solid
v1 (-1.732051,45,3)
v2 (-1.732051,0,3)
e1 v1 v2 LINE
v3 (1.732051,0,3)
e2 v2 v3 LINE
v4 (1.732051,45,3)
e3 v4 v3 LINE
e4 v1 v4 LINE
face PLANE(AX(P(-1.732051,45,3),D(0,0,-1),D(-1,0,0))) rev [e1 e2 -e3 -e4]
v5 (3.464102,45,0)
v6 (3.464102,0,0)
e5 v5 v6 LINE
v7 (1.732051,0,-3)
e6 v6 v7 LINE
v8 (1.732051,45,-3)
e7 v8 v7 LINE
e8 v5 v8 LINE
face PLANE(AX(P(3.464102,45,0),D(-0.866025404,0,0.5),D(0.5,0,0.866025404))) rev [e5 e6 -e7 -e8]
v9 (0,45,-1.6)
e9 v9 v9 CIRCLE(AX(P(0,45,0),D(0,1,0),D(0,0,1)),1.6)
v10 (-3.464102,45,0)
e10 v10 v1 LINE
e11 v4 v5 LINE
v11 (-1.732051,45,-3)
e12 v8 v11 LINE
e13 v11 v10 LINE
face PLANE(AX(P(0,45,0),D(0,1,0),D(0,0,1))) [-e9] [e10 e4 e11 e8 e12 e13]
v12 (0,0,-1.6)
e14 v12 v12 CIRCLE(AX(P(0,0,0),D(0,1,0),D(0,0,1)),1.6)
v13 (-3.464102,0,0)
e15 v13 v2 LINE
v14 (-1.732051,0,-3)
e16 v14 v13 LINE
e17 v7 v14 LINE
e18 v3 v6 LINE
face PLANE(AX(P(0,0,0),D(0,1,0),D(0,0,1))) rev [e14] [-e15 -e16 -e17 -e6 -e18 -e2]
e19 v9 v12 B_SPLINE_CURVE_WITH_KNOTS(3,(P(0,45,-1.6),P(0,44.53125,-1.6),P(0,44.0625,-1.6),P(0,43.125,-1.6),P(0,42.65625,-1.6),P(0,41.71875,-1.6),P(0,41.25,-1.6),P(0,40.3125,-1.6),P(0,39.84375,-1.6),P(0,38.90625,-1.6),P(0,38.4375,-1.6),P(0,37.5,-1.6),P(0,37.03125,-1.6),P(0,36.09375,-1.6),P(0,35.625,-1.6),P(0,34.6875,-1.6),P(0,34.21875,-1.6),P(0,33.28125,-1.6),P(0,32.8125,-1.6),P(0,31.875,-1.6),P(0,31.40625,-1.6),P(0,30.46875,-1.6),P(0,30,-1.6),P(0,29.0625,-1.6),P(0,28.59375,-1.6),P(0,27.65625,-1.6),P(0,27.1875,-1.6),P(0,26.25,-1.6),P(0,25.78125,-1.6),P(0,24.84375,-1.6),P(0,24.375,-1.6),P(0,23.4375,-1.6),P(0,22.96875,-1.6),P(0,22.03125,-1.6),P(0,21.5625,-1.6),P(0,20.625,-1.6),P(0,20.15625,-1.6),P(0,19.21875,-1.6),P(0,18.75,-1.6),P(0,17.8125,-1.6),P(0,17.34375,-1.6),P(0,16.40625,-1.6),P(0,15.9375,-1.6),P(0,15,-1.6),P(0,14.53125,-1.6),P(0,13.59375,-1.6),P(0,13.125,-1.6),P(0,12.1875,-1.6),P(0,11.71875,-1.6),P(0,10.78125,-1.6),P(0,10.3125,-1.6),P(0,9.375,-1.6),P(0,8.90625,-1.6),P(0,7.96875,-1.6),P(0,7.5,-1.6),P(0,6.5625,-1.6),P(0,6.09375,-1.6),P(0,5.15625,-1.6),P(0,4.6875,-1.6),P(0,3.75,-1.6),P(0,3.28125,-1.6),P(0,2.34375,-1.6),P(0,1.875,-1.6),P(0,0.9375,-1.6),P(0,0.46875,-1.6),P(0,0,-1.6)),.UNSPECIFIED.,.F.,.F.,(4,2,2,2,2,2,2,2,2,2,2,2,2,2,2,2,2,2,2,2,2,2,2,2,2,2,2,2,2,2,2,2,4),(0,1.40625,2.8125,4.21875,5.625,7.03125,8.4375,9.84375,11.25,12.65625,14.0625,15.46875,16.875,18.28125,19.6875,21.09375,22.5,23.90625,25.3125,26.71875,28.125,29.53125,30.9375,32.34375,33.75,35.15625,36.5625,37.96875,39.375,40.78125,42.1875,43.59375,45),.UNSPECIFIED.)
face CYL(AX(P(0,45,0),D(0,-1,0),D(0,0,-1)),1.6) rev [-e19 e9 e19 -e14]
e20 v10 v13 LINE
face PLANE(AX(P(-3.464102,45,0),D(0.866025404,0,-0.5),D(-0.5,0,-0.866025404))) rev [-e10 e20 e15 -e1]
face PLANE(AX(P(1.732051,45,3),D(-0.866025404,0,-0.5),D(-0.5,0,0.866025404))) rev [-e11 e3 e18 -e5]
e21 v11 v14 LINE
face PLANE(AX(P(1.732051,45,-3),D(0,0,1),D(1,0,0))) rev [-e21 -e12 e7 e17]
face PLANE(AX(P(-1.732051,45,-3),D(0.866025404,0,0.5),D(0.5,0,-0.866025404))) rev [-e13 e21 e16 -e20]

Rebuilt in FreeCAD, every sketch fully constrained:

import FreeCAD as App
import Part
import Sketcher

V = App.Vector
Q = App.Units.Quantity


def add_polygon(sketch, points):
    """Adds a closed chain of lines whose ends are joined by coincident constraints."""
    first, n = sketch.GeometryCount, len(points)
    for a, b in zip(points, points[1:] + points[:1]):
        sketch.addGeometry(Part.LineSegment(App.Vector(*a, 0), App.Vector(*b, 0)), False)
    for i in range(n):
        sketch.addConstraint(Sketcher.Constraint("Coincident", first + i, 2, first + (i + 1) % n, 1))

doc = App.newDocument("Part")
body = doc.addObject("PartDesign::Body", "Body")

# Sketch on XZ plane
sketch1 = doc.addObject("Sketcher::SketchObject", "Sketch")
body.addObject(sketch1)
sketch1.AttachmentSupport = (doc.XZ_Plane, [""])
sketch1.MapMode = "FlatFace"
add_polygon(sketch1, [(3.464102, 0), (1.732051, -3), (-1.732051, -3), (-3.464102, 0), (-1.732051, 3), (1.732051, 3)])  # lines 0-5
sketch1.addGeometry(Part.Circle(V(0, 0, 0), V(0, 0, 1), 1.6), False)  # 6
sketch1.addConstraint([
    Sketcher.Constraint("Horizontal", 1),
    Sketcher.Constraint("Horizontal", 4),
    Sketcher.Constraint("Coincident", 6, 3, -1, 1),
    Sketcher.Constraint("Symmetric", 0, 2, 3, 2, -1, 1),
    Sketcher.Constraint("Symmetric", 2, 2, 5, 2, -1, 1),
    Sketcher.Constraint("PointOnObject", 2, 2, -1),
    Sketcher.Constraint("Parallel", 2, 5),
    Sketcher.Constraint("Vertical", 1, 2, 3, 2),
    Sketcher.Constraint("Diameter", 6, 3.2),
    Sketcher.Constraint("Angle", 0, Q("-120 deg")),
    Sketcher.Constraint("DistanceY", 0, 2, -1, 1, 3.0),
    Sketcher.Constraint("DistanceX", 1, 2, 1, 1, 3.464102),
])
pad1 = doc.addObject("PartDesign::Pad", "Pad")
body.addObject(pad1)
pad1.Profile = sketch1
pad1.Length = 45
pad1.Reversed = True

doc.recompute()
